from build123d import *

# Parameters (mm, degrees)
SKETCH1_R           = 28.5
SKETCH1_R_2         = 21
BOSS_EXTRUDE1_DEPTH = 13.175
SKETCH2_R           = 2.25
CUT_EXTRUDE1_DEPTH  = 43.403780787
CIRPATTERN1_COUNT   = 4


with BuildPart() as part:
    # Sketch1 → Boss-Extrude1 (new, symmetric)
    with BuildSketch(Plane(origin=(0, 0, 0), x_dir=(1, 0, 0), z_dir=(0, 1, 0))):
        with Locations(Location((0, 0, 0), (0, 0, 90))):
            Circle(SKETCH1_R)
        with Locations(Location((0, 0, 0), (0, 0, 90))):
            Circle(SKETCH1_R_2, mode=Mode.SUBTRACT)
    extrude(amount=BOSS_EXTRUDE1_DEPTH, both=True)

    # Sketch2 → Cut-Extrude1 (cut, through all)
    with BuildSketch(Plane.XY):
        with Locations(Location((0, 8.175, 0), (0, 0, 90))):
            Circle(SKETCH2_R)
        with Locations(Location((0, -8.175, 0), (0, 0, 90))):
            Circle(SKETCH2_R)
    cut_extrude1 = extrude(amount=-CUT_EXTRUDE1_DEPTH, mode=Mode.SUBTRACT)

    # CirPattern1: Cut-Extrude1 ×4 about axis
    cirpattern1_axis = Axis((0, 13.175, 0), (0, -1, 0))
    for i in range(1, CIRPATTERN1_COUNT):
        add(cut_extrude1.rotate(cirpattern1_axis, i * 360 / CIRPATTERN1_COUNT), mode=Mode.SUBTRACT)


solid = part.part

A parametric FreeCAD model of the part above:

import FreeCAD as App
import Part
import Sketcher

V = App.Vector

doc = App.newDocument("Part")
params = doc.addObject("Spreadsheet::Sheet", "Params")
for row, (alias, value) in enumerate([
    ("sketch1_diameter", "57 mm"),
    ("sketch1_diameter2", "42 mm"),
    ("pad1_length", "26.35 mm"),
    ("sketch2_diameter", "4.5 mm"),
], start=1):
    params.set(f"A{row}", alias)
    params.set(f"B{row}", "=" + value)
    params.setAlias(f"B{row}", alias)

body = doc.addObject("PartDesign::Body", "Body")

# Sketch on XZ plane
sketch1 = doc.addObject("Sketcher::SketchObject", "Sketch")
body.addObject(sketch1)
sketch1.AttachmentSupport = (doc.XZ_Plane, [""])
sketch1.MapMode = "FlatFace"
sketch1.addGeometry([
    Part.Circle(V(0, 0, 0), V(0, 0, 1), 28.5),
    Part.Circle(V(0, 0, 0), V(0, 0, 1), 21),
], False)
sketch1.addConstraint([
    Sketcher.Constraint("Coincident", 0, 3, -1, 1),
    Sketcher.Constraint("Coincident", 1, 3, -1, 1),
    Sketcher.Constraint("Diameter", 0, 57.0),
    Sketcher.Constraint("Diameter", 1, 42.0),
])
sketch1.setExpression("Constraints[2]", "Params.sketch1_diameter")
sketch1.setExpression("Constraints[3]", "Params.sketch1_diameter2")
pad1 = doc.addObject("PartDesign::Pad", "Pad")
body.addObject(pad1)
pad1.Profile = sketch1
pad1.setExpression("Length", "Params.pad1_length")
pad1.Midplane = True

# Sketch on XY plane
sketch2 = doc.addObject("Sketcher::SketchObject", "Sketch001")
body.addObject(sketch2)
sketch2.AttachmentSupport = (doc.XY_Plane, [""])
sketch2.MapMode = "FlatFace"
sketch2.addGeometry([
    Part.Circle(V(0, 8.175, 0), V(0, 0, 1), 2.25),
    Part.Circle(V(0, -8.175, 0), V(0, 0, 1), 2.25),
], False)
sketch2.addConstraint([
    Sketcher.Constraint("Equal", 0, 1),
    Sketcher.Constraint("Symmetric", 0, 3, 1, 3, -1, 1),
    Sketcher.Constraint("PointOnObject", 0, 3, -2),
    Sketcher.Constraint("Diameter", 0, 4.5),
    Sketcher.Constraint("DistanceY", 1, 3, 0, 3, 16.35),
])
sketch2.setExpression("Constraints[3]", "Params.sketch2_diameter")
pocket1 = doc.addObject("PartDesign::Pocket", "Pocket")
body.addObject(pocket1)
pocket1.Profile = sketch2
pocket1.Type = "ThroughAll"
doc.recompute()

polarpattern = doc.addObject("PartDesign::PolarPattern", "PolarPattern")
body.addObject(polarpattern)
polarpattern.Originals = [pocket1]
polarpattern.Axis = (doc.Y_Axis, [""])
polarpattern.Angle = 360
polarpattern.Occurrences = 4
body.Tip = polarpattern

doc.recompute()
